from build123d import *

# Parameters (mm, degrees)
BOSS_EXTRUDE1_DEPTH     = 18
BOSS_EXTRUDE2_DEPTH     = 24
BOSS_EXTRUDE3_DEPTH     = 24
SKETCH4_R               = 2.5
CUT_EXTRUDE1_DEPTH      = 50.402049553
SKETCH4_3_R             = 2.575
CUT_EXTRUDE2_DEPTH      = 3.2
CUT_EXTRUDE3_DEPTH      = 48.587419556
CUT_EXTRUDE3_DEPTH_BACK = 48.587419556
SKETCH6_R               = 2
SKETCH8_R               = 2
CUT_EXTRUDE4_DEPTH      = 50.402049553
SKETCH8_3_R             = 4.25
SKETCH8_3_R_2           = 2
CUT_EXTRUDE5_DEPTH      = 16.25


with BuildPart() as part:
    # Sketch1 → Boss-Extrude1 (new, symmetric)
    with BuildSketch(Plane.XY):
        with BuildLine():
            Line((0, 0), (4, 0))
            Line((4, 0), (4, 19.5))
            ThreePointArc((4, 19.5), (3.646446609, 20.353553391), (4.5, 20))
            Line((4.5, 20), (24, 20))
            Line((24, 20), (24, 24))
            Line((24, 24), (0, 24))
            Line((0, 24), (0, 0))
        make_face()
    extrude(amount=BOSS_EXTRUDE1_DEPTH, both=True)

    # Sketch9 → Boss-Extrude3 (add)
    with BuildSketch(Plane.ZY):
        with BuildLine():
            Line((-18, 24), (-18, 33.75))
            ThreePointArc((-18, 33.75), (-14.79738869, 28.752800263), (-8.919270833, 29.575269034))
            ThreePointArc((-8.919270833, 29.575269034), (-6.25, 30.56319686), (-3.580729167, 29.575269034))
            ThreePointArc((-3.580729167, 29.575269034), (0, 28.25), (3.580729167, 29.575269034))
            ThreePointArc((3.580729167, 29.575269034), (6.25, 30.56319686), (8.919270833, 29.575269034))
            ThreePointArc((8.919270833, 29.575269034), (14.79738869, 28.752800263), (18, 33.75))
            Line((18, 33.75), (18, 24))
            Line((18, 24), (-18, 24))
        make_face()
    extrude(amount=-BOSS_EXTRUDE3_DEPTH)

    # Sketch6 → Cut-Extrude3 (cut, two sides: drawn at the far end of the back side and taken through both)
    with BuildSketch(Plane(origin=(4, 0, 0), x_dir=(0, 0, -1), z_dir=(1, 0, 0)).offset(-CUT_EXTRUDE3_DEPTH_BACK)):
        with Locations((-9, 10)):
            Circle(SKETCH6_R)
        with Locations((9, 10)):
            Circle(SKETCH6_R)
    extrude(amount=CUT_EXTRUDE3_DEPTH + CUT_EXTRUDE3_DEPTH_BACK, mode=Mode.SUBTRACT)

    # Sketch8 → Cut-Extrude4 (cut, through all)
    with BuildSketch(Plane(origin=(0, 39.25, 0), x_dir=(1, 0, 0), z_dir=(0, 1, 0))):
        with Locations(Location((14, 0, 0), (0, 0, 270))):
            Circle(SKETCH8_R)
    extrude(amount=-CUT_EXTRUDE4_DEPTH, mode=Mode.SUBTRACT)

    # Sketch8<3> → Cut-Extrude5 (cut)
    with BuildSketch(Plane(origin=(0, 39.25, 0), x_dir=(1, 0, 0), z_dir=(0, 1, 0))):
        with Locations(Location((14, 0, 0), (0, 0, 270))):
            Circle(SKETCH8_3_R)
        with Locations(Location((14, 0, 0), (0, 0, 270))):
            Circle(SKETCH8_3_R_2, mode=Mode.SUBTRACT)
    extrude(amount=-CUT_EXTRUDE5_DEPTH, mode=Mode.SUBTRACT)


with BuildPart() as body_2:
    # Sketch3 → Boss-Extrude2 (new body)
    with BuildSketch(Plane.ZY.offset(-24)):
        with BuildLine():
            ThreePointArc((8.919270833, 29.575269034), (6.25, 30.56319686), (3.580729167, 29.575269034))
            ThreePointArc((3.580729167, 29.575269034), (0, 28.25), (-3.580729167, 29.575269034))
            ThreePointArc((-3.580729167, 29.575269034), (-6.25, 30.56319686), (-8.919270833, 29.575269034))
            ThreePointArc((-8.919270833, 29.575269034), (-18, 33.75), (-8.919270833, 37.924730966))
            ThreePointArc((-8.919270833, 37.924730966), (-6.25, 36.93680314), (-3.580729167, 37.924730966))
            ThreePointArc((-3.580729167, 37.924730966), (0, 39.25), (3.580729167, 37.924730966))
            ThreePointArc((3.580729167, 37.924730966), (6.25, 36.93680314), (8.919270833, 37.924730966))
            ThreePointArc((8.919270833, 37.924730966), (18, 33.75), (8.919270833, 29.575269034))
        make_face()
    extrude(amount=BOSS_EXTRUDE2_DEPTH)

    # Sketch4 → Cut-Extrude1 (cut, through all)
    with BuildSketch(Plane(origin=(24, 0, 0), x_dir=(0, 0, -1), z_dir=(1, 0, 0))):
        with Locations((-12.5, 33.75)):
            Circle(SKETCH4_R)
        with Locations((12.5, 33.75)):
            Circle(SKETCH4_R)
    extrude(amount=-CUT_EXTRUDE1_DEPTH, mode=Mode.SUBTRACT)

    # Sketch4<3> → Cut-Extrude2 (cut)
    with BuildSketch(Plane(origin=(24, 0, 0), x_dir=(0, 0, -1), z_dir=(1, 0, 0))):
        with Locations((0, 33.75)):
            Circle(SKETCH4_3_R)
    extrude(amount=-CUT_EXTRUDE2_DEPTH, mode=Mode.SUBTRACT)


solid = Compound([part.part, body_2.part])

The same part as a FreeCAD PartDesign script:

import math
import FreeCAD as App
import Part
import Sketcher

V = App.Vector
Q = App.Units.Quantity

doc = App.newDocument("Part")
body = doc.addObject("PartDesign::Body", "Body")

# Sketch on XY plane
sketch1 = doc.addObject("Sketcher::SketchObject", "Sketch")
body.addObject(sketch1)
sketch1.AttachmentSupport = (doc.XY_Plane, [""])
sketch1.MapMode = "FlatFace"
sketch1.addGeometry([
    Part.LineSegment(V(0, 0, 0), V(4, 0, 0)),  # 0
    Part.LineSegment(V(4, 0, 0), V(4, 19.5, 0)),  # 1
    Part.ArcOfCircle(Part.Circle(V(4, 20, 0), V(0, 0, 1), 0.5), math.radians(0), math.radians(270)),  # 2
    Part.LineSegment(V(4.5, 20, 0), V(24, 20, 0)),  # 3
    Part.LineSegment(V(24, 20, 0), V(24, 24, 0)),  # 4
    Part.LineSegment(V(24, 24, 0), V(0, 24, 0)),  # 5
    Part.LineSegment(V(0, 24, 0), V(0, 0, 0)),  # 6
], False)
sketch1.addConstraint([
    Sketcher.Constraint("Coincident", 0, 2, 1, 1),
    Sketcher.Constraint("Coincident", 1, 2, 2, 2),
    Sketcher.Constraint("Coincident", 2, 1, 3, 1),
    Sketcher.Constraint("Coincident", 3, 2, 4, 1),
    Sketcher.Constraint("Coincident", 4, 2, 5, 1),
    Sketcher.Constraint("Coincident", 5, 2, 6, 1),
    Sketcher.Constraint("Coincident", 6, 2, 0, 1),
    Sketcher.Constraint("Horizontal", 0),
    Sketcher.Constraint("Vertical", 1),
    Sketcher.Constraint("Horizontal", 3),
    Sketcher.Constraint("Vertical", 4),
    Sketcher.Constraint("Horizontal", 5),
    Sketcher.Constraint("Vertical", 6),
    Sketcher.Constraint("Coincident", 6, 2, -1, 1),
    Sketcher.Constraint("Vertical", 2, 3, 0, 2),
    Sketcher.Constraint("Equal", 3, 1),
    Sketcher.Constraint("Equal", 0, 4),
    Sketcher.Constraint("Equal", 5, 6),
    Sketcher.Constraint("Radius", 2, Q("0.5 mm")),
    Sketcher.Constraint("DistanceX", 0, 1, 0, 2, Q("4 mm")),
    Sketcher.Constraint("DistanceX", 5, 2, 5, 1, Q("24 mm")),
])
pad1 = doc.addObject("PartDesign::Pad", "Pad")
body.addObject(pad1)
pad1.Profile = sketch1
pad1.Length = 36
pad1.Midplane = True

# Sketch on YZ plane
sketch2 = doc.addObject("Sketcher::SketchObject", "Sketch001")
body.addObject(sketch2)
sketch2.AttachmentSupport = (doc.YZ_Plane, [""])
sketch2.MapMode = "FlatFace"
sketch2.addGeometry([
    Part.LineSegment(V(33.8, -18, 0), V(24, -18, 0)),  # 0
    Part.LineSegment(V(24, -18, 0), V(24, 18, 0)),  # 1
    Part.LineSegment(V(24, 18, 0), V(33.8, 18, 0)),  # 2
    Part.ArcOfCircle(Part.Circle(V(33.8, 12.5, 0), V(0, 0, 1), 5.5), math.radians(90), math.radians(221)),  # 3
    Part.ArcOfCircle(Part.Circle(V(26.5, 6.2, 0), V(0, 0, 1), 4.1), math.radians(-41), math.radians(41)),  # 4
    Part.ArcOfCircle(Part.Circle(V(33.8, 0, 0), V(0, 0, 1), 5.5), math.radians(139), math.radians(221)),  # 5
    Part.ArcOfCircle(Part.Circle(V(26.5, -6.2, 0), V(0, 0, 1), 4.1), math.radians(-41), math.radians(41)),  # 6
    Part.ArcOfCircle(Part.Circle(V(33.8, -12.5, 0), V(0, 0, 1), 5.5), math.radians(139), math.radians(270)),  # 7
], False)
sketch2.addConstraint([
    Sketcher.Constraint("Coincident", 0, 2, 1, 1),
    Sketcher.Constraint("Coincident", 1, 2, 2, 1),
    Sketcher.Constraint("Tangent", 2, 2, 3, 1),
    Sketcher.Constraint("Tangent", 3, 2, 4, 2),
    Sketcher.Constraint("Tangent", 4, 1, 5, 1),
    Sketcher.Constraint("Tangent", 5, 2, 6, 2),
    Sketcher.Constraint("Tangent", 6, 1, 7, 1),
    Sketcher.Constraint("Tangent", 7, 2, 0, 1),
    Sketcher.Constraint("Horizontal", 0),
    Sketcher.Constraint("Vertical", 1),
    Sketcher.Constraint("Horizontal", 2),
    Sketcher.Constraint("Equal", 3, 5),
    Sketcher.Constraint("Equal", 4, 6),
    Sketcher.Constraint("Equal", 5, 7),
    Sketcher.Constraint("Symmetric", 4, 3, 6, 3, -1),
    Sketcher.Constraint("Vertical", 3, 3, 5, 3),
    Sketcher.Constraint("Vertical", 5, 3, 7, 3),
    Sketcher.Constraint("Radius", 3, Q("5.5 mm")),
    Sketcher.Constraint("Radius", 4, Q("4.1 mm")),
    Sketcher.Constraint("DistanceY", 1, 1, 1, 2, Q("36 mm")),
    Sketcher.Constraint("DistanceX", -1, 1, 0, 2, Q("24 mm")),
    Sketcher.Constraint("DistanceX", 0, 2, 0, 1, Q("9.75 mm")),
])
pad2 = doc.addObject("PartDesign::Pad", "Pad001")
body.addObject(pad2)
pad2.Profile = sketch2
pad2.Length = 24

# Sketch on YZ plane
sketch3 = doc.addObject("Sketcher::SketchObject", "Sketch002")
body.addObject(sketch3)
sketch3.AttachmentSupport = (doc.YZ_Plane, [""])
sketch3.MapMode = "FlatFace"
sketch3.AttachmentOffset = App.Placement(V(0, 0, 4), App.Rotation())
sketch3.addGeometry([
    Part.Circle(V(10, 9, 0), V(0, 0, 1), 2),
    Part.Circle(V(10, -9, 0), V(0, 0, 1), 2),
], False)
sketch3.addConstraint([
    Sketcher.Constraint("Equal", 0, 1),
    Sketcher.Constraint("Symmetric", 0, 3, 1, 3, -1),
    Sketcher.Constraint("Diameter", 0, Q("4 mm")),
    Sketcher.Constraint("DistanceX", -1, 1, 0, 3, Q("10 mm")),
    Sketcher.Constraint("DistanceY", -1, 1, 0, 3, Q("9 mm")),
])
pocket1 = doc.addObject("PartDesign::Pocket", "Pocket")
body.addObject(pocket1)
pocket1.Profile = sketch3
pocket1.Type = "ThroughAll"
pocket1.Midplane = True

# Sketch on XZ plane
sketch4 = doc.addObject("Sketcher::SketchObject", "Sketch003")
body.addObject(sketch4)
sketch4.AttachmentSupport = (doc.XZ_Plane, [""])
sketch4.MapMode = "FlatFace"
sketch4.AttachmentOffset = App.Placement(V(0, 0, -39.25), App.Rotation())
sketch4.addGeometry(Part.Circle(V(14, 0, 0), V(0, 0, 1), 2), False)
sketch4.addConstraint([
    Sketcher.Constraint("PointOnObject", 0, 3, -1),
    Sketcher.Constraint("Diameter", 0, Q("4 mm")),
    Sketcher.Constraint("DistanceX", -1, 1, 0, 3, Q("14 mm")),
])
pocket2 = doc.addObject("PartDesign::Pocket", "Pocket001")
body.addObject(pocket2)
pocket2.Profile = sketch4
pocket2.Type = "ThroughAll"
pocket2.Reversed = True

# Sketch on XZ plane
sketch5 = doc.addObject("Sketcher::SketchObject", "Sketch004")
body.addObject(sketch5)
sketch5.AttachmentSupport = (doc.XZ_Plane, [""])
sketch5.MapMode = "FlatFace"
sketch5.AttachmentOffset = App.Placement(V(0, 0, -39.25), App.Rotation())
sketch5.addGeometry([
    Part.Circle(V(14, 0, 0), V(0, 0, 1), 4.2),
    Part.Circle(V(14, 0, 0), V(0, 0, 1), 2),
], False)
sketch5.addConstraint([
    Sketcher.Constraint("Coincident", 1, 3, 0, 3),
    Sketcher.Constraint("PointOnObject", 0, 3, -1),
    Sketcher.Constraint("Diameter", 1, Q("4 mm")),
    Sketcher.Constraint("Diameter", 0, Q("8.5 mm")),
    Sketcher.Constraint("DistanceX", -1, 1, 0, 3, Q("14 mm")),
])
pocket3 = doc.addObject("PartDesign::Pocket", "Pocket002")
body.addObject(pocket3)
pocket3.Profile = sketch5
pocket3.Length = 16.25
pocket3.Reversed = True
body2 = doc.addObject("PartDesign::Body", "Body001")

# Sketch on YZ plane
sketch6 = doc.addObject("Sketcher::SketchObject", "Sketch005")
body2.addObject(sketch6)
sketch6.AttachmentSupport = (doc.getObject("YZ_Plane001"), [""])
sketch6.MapMode = "FlatFace"
sketch6.AttachmentOffset = App.Placement(V(0, 0, 24), App.Rotation())
sketch6.addGeometry([
    Part.ArcOfCircle(Part.Circle(V(26.5, 6.2, 0), V(0, 0, 1), 4.1), math.radians(-41), math.radians(41)),  # 0
    Part.ArcOfCircle(Part.Circle(V(33.8, 12.5, 0), V(0, 0, 1), 5.5), math.radians(-41), math.radians(221)),  # 1
    Part.ArcOfCircle(Part.Circle(V(41, 6.2, 0), V(0, 0, 1), 4.1), math.radians(139), math.radians(221)),  # 2
    Part.ArcOfCircle(Part.Circle(V(33.7, 0, 0), V(0, 0, 1), 5.5), math.radians(-41), math.radians(41)),  # 3
    Part.ArcOfCircle(Part.Circle(V(41, -6.2, 0), V(0, 0, 1), 4.1), math.radians(139), math.radians(221)),  # 4
    Part.ArcOfCircle(Part.Circle(V(33.8, -12.5, 0), V(0, 0, 1), 5.5), math.radians(139), math.radians(401)),  # 5
    Part.ArcOfCircle(Part.Circle(V(26.5, -6.2, 0), V(0, 0, 1), 4.1), math.radians(-41), math.radians(41)),  # 6
    Part.ArcOfCircle(Part.Circle(V(33.8, 0, 0), V(0, 0, 1), 5.5), math.radians(139), math.radians(221)),  # 7
], False)
sketch6.addConstraint([
    Sketcher.Constraint("Tangent", 0, 2, 1, 2),
    Sketcher.Constraint("Tangent", 1, 1, 2, 1),
    Sketcher.Constraint("Tangent", 2, 2, 3, 2),
    Sketcher.Constraint("Tangent", 3, 1, 4, 1),
    Sketcher.Constraint("Tangent", 4, 2, 5, 2),
    Sketcher.Constraint("Tangent", 5, 1, 6, 1),
    Sketcher.Constraint("Tangent", 6, 2, 7, 2),
    Sketcher.Constraint("Tangent", 7, 1, 0, 1),
    Sketcher.Constraint("Coincident", 7, 3, 3, 3),
    Sketcher.Constraint("Equal", 0, 2),
    Sketcher.Constraint("Equal", 1, 3),
    Sketcher.Constraint("Equal", 2, 4),
    Sketcher.Constraint("Equal", 3, 5),
    Sketcher.Constraint("Equal", 4, 6),
    Sketcher.Constraint("Equal", 5, 7),
    Sketcher.Constraint("Symmetric", 2, 3, 4, 3, -1),
    Sketcher.Constraint("Horizontal", 0, 3, 2, 3),
    Sketcher.Constraint("Horizontal", 4, 3, 6, 3),
    Sketcher.Constraint("Radius", 0, Q("4.1 mm")),
    Sketcher.Constraint("Radius", 1, Q("5.5 mm")),
    Sketcher.Constraint("DistanceY", 5, 3, 1, 3, Q("25 mm")),
    Sketcher.Constraint("DistanceX", -1, 1, 1, 3, Q("33.75 mm")),
])
pad3 = doc.addObject("PartDesign::Pad", "Pad002")
body2.addObject(pad3)
pad3.Profile = sketch6
pad3.Length = 24
pad3.Reversed = True

# Sketch on YZ plane
sketch7 = doc.addObject("Sketcher::SketchObject", "Sketch006")
body2.addObject(sketch7)
sketch7.AttachmentSupport = (doc.getObject("YZ_Plane001"), [""])
sketch7.MapMode = "FlatFace"
sketch7.AttachmentOffset = App.Placement(V(0, 0, 24), App.Rotation())
sketch7.addGeometry([
    Part.Circle(V(33.8, 12.5, 0), V(0, 0, 1), 2.5),
    Part.Circle(V(33.8, -12.5, 0), V(0, 0, 1), 2.5),
], False)
sketch7.addConstraint([
    Sketcher.Constraint("Equal", 0, 1),
    Sketcher.Constraint("Symmetric", 0, 3, 1, 3, -1),
    Sketcher.Constraint("Diameter", 0, Q("5 mm")),
    Sketcher.Constraint("DistanceY", 1, 3, 0, 3, Q("25 mm")),
    Sketcher.Constraint("DistanceX", -1, 1, 0, 3, Q("33.75 mm")),
])
pocket4 = doc.addObject("PartDesign::Pocket", "Pocket003")
body2.addObject(pocket4)
pocket4.Profile = sketch7
pocket4.Type = "ThroughAll"

# Sketch on YZ plane
sketch8 = doc.addObject("Sketcher::SketchObject", "Sketch007")
body2.addObject(sketch8)
sketch8.AttachmentSupport = (doc.getObject("YZ_Plane001"), [""])
sketch8.MapMode = "FlatFace"
sketch8.AttachmentOffset = App.Placement(V(0, 0, 24), App.Rotation())
sketch8.addGeometry(Part.Circle(V(33.8, 0, 0), V(0, 0, 1), 2.6), False)
sketch8.addConstraint([
    Sketcher.Constraint("PointOnObject", 0, 3, -1),
    Sketcher.Constraint("Diameter", 0, Q("5.15 mm")),
    Sketcher.Constraint("DistanceX", -1, 1, 0, 3, Q("33.75 mm")),
])
pocket5 = doc.addObject("PartDesign::Pocket", "Pocket004")
body2.addObject(pocket5)
pocket5.Profile = sketch8
pocket5.Length = 3.2

doc.recompute()
